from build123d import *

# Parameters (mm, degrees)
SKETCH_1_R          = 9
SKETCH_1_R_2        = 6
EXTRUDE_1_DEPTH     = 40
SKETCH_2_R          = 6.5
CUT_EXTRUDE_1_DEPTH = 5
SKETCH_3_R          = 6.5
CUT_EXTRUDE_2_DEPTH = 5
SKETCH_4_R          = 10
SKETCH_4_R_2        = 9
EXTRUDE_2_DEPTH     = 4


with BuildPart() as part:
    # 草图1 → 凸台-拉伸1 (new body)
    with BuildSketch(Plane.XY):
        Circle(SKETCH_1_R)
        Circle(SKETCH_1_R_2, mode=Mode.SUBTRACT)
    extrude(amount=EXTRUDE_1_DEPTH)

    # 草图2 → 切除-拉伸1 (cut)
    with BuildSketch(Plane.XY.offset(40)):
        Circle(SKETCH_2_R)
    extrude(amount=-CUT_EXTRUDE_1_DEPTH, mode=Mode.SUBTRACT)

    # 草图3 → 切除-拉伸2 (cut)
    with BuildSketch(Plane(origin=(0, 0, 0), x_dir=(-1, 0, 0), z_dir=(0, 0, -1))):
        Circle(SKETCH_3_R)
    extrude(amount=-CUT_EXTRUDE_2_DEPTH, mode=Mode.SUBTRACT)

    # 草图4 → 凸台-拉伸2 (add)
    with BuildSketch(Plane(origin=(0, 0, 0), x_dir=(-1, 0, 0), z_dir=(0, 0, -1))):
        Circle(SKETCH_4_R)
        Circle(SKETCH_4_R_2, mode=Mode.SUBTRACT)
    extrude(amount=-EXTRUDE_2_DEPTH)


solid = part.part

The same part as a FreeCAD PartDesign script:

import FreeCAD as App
import Part
import Sketcher

doc = App.newDocument("Part")
body = doc.addObject("PartDesign::Body", "Body")

sketch1 = doc.addObject("Sketcher::SketchObject", "Sketch")
body.addObject(sketch1)
sketch1.AttachmentSupport = (doc.XY_Plane, [""])
sketch1.MapMode = "FlatFace"
sketch1.addGeometry(Part.Circle(App.Vector(0, 0, 0), App.Vector(0, 0, 1), 9), False)
sketch1.addGeometry(Part.Circle(App.Vector(0, 0, 0), App.Vector(0, 0, 1), 6), False)
sketch1.addConstraint(Sketcher.Constraint("Coincident", 0, 3, -1, 1))
sketch1.addConstraint(Sketcher.Constraint("Coincident", 1, 3, -1, 1))
sketch1.addConstraint(Sketcher.Constraint("Diameter", 0, 18.0))
sketch1.addConstraint(Sketcher.Constraint("Diameter", 1, 12.0))
pad1 = doc.addObject("PartDesign::Pad", "Pad")
body.addObject(pad1)
pad1.Profile = sketch1
pad1.Length = 40

sketch2 = doc.addObject("Sketcher::SketchObject", "Sketch001")
body.addObject(sketch2)
sketch2.AttachmentSupport = (doc.XY_Plane, [""])
sketch2.MapMode = "FlatFace"
sketch2.AttachmentOffset = App.Placement(App.Vector(0, 0, 40), App.Rotation())
sketch2.addGeometry(Part.Circle(App.Vector(0, 0, 0), App.Vector(0, 0, 1), 6), False)
sketch2.addConstraint(Sketcher.Constraint("Coincident", 0, 3, -1, 1))
sketch2.addConstraint(Sketcher.Constraint("Diameter", 0, 13.0))
pocket1 = doc.addObject("PartDesign::Pocket", "Pocket")
body.addObject(pocket1)
pocket1.Profile = sketch2
pocket1.Length = 5

sketch3 = doc.addObject("Sketcher::SketchObject", "Sketch002")
body.addObject(sketch3)
sketch3.AttachmentSupport = (doc.XY_Plane, [""])
sketch3.MapMode = "FlatFace"
sketch3.addGeometry(Part.Circle(App.Vector(0, 0, 0), App.Vector(0, 0, 1), 6), False)
sketch3.addConstraint(Sketcher.Constraint("Coincident", 0, 3, -1, 1))
sketch3.addConstraint(Sketcher.Constraint("Diameter", 0, 13.0))
pocket2 = doc.addObject("PartDesign::Pocket", "Pocket001")
body.addObject(pocket2)
pocket2.Profile = sketch3
pocket2.Length = 5
pocket2.Reversed = True

sketch4 = doc.addObject("Sketcher::SketchObject", "Sketch003")
body.addObject(sketch4)
sketch4.AttachmentSupport = (doc.XY_Plane, [""])
sketch4.MapMode = "FlatFace"
sketch4.addGeometry(Part.Circle(App.Vector(0, 0, 0), App.Vector(0, 0, 1), 10), False)
sketch4.addGeometry(Part.Circle(App.Vector(0, 0, 0), App.Vector(0, 0, 1), 9), False)
sketch4.addConstraint(Sketcher.Constraint("Coincident", 0, 3, -1, 1))
sketch4.addConstraint(Sketcher.Constraint("Coincident", 1, 3, -1, 1))
sketch4.addConstraint(Sketcher.Constraint("Diameter", 0, 20.0))
sketch4.addConstraint(Sketcher.Constraint("Diameter", 1, 18.0))
pad2 = doc.addObject("PartDesign::Pad", "Pad001")
body.addObject(pad2)
pad2.Profile = sketch4
pad2.Length = 4

doc.recompute()
